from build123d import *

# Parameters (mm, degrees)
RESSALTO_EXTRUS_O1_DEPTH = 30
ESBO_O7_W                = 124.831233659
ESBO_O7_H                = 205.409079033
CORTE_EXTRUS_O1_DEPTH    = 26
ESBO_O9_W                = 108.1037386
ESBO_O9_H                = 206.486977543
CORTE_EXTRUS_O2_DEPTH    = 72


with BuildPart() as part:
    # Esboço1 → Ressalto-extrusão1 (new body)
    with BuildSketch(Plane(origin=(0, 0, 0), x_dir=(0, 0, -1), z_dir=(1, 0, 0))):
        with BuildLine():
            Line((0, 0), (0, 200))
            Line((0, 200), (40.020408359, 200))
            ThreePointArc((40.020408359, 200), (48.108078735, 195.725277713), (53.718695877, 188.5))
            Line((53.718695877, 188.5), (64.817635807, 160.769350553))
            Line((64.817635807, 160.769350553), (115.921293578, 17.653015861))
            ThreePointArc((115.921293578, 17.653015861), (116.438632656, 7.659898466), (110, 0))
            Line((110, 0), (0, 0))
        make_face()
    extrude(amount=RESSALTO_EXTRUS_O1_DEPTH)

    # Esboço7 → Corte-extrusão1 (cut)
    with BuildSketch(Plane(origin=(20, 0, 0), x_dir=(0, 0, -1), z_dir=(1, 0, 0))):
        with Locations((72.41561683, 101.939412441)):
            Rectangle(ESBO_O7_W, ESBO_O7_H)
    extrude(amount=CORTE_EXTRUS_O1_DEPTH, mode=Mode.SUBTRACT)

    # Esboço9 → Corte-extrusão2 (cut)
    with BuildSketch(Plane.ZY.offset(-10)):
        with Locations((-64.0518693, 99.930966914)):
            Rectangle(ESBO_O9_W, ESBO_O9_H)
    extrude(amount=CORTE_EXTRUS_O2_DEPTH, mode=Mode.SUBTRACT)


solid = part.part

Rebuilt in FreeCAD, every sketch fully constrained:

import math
import FreeCAD as App
import Part
import Sketcher
from FreeCAD import Vector
Q = App.Units.Quantity

doc = App.newDocument("Part")
body = doc.addObject("PartDesign::Body", "Body")

sketch1 = body.newObject("Sketcher::SketchObject", "Sketch")
sketch1.AttachmentSupport = (doc.getObject("YZ_Plane"), [""])
sketch1.MapMode = "FlatFace"
sketch1.addGeometry(Part.LineSegment(Vector(200, 0, 0), Vector(0, 0, 0)), False)
sketch1.addGeometry(Part.LineSegment(Vector(0, 0, 0), Vector(0, -110, 0)), False)
sketch1.addGeometry(Part.ArcOfCircle(Part.Circle(Vector(12, -103, 0), Vector(0, 0, 1), 14), math.radians(-152), math.radians(-66)), False)
sketch1.addGeometry(Part.LineSegment(Vector(18, -116, 0), Vector(161, -65, 0)), False)
sketch1.addGeometry(Part.LineSegment(Vector(161, -65, 0), Vector(188, -54, 0)), False)
sketch1.addGeometry(Part.ArcOfCircle(Part.Circle(Vector(179, -34, 0), Vector(0, 0, 1), 22), math.radians(-64), math.radians(-16)), False)
sketch1.addGeometry(Part.LineSegment(Vector(200, -40, 0), Vector(200, 0, 0)), False)
sketch1.addConstraint(Sketcher.Constraint("Coincident", 0, 2, 1, 1))
sketch1.addConstraint(Sketcher.Constraint("Coincident", 1, 2, 2, 1))
sketch1.addConstraint(Sketcher.Constraint("Coincident", 2, 2, 3, 1))
sketch1.addConstraint(Sketcher.Constraint("Coincident", 3, 2, 4, 1))
sketch1.addConstraint(Sketcher.Constraint("Coincident", 4, 2, 5, 1))
sketch1.addConstraint(Sketcher.Constraint("Coincident", 5, 2, 6, 1))
sketch1.addConstraint(Sketcher.Constraint("Coincident", 6, 2, 0, 1))
sketch1.addConstraint(Sketcher.Constraint("Horizontal", 0))
sketch1.addConstraint(Sketcher.Constraint("Vertical", 1))
sketch1.addConstraint(Sketcher.Constraint("Vertical", 6))
sketch1.addConstraint(Sketcher.Constraint("Coincident", 0, 2, -1, 1))
sketch1.addConstraint(Sketcher.Constraint("DistanceX", 0, 2, 0, 1, Q("200 mm")))
sketch1.addConstraint(Sketcher.Constraint("DistanceY", 1, 2, 1, 1, Q("110 mm")))
sketch1.addConstraint(Sketcher.Constraint("DistanceX", -1, 1, 2, 3, Q("12 mm")))
sketch1.addConstraint(Sketcher.Constraint("DistanceX", -1, 1, 4, 2, Q("188.5 mm")))
sketch1.addConstraint(Sketcher.Constraint("Radius", 2, Q("13.64754 mm")))
sketch1.addConstraint(Sketcher.Constraint("Radius", 5, Q("21.722047 mm")))
sketch1.addConstraint(Sketcher.Constraint("DistanceY", 6, 1, 6, 2, Q("40.020408 mm")))
sketch1.addConstraint(Sketcher.Constraint("Distance", 3, Q("151.966671 mm")))
sketch1.addConstraint(Sketcher.Constraint("DistanceX", -1, 1, 3, 2, Q("160.769351 mm")))
sketch1.addConstraint(Sketcher.Constraint("DistanceX", 2, 2, 5, 3, Q("161.43566 mm")))
sketch1.addConstraint(Sketcher.Constraint("DistanceY", 2, 2, 5, 3, Q("81.779991 mm")))
pad1 = body.newObject("PartDesign::Pad", "Pad")
pad1.Profile = sketch1
pad1.Length = 30

sketch2 = body.newObject("Sketcher::SketchObject", "Sketch001")
sketch2.AttachmentSupport = (doc.getObject("YZ_Plane"), [""])
sketch2.MapMode = "FlatFace"
sketch2.AttachmentOffset = App.Placement(Vector(0, 0, 20), App.Rotation())
sketch2.addGeometry(Part.LineSegment(Vector(205, -10, 0), Vector(-1, -10, 0)), False)
sketch2.addGeometry(Part.LineSegment(Vector(-1, -10, 0), Vector(-1, -135, 0)), False)
sketch2.addGeometry(Part.LineSegment(Vector(-1, -135, 0), Vector(205, -135, 0)), False)
sketch2.addGeometry(Part.LineSegment(Vector(205, -135, 0), Vector(205, -10, 0)), False)
sketch2.addConstraint(Sketcher.Constraint("Coincident", 0, 2, 1, 1))
sketch2.addConstraint(Sketcher.Constraint("Coincident", 1, 2, 2, 1))
sketch2.addConstraint(Sketcher.Constraint("Coincident", 2, 2, 3, 1))
sketch2.addConstraint(Sketcher.Constraint("Coincident", 3, 2, 0, 1))
sketch2.addConstraint(Sketcher.Constraint("Horizontal", 0))
sketch2.addConstraint(Sketcher.Constraint("Vertical", 1))
sketch2.addConstraint(Sketcher.Constraint("Horizontal", 2))
sketch2.addConstraint(Sketcher.Constraint("Vertical", 3))
sketch2.addConstraint(Sketcher.Constraint("DistanceY", 0, 2, -1, 1, Q("10 mm")))
sketch2.addConstraint(Sketcher.Constraint("DistanceX", 0, 2, 0, 1, Q("205.409079 mm")))
sketch2.addConstraint(Sketcher.Constraint("DistanceY", 1, 2, 1, 1, Q("124.831234 mm")))
sketch2.addConstraint(Sketcher.Constraint("DistanceX", -1, 1, 2, 2, Q("204.643952 mm")))
pocket1 = body.newObject("PartDesign::Pocket", "Pocket")
pocket1.Profile = sketch2
pocket1.Length = 26
pocket1.Reversed = True

sketch3 = body.newObject("Sketcher::SketchObject", "Sketch002")
sketch3.AttachmentSupport = (doc.getObject("YZ_Plane"), [""])
sketch3.MapMode = "FlatFace"
sketch3.AttachmentOffset = App.Placement(Vector(0, 0, 10), App.Rotation())
sketch3.addGeometry(Part.LineSegment(Vector(203, -118, 0), Vector(-3, -118, 0)), False)
sketch3.addGeometry(Part.LineSegment(Vector(-3, -118, 0), Vector(-3, -10, 0)), False)
sketch3.addGeometry(Part.LineSegment(Vector(-3, -10, 0), Vector(203, -10, 0)), False)
sketch3.addGeometry(Part.LineSegment(Vector(203, -10, 0), Vector(203, -118, 0)), False)
sketch3.addConstraint(Sketcher.Constraint("Coincident", 0, 2, 1, 1))
sketch3.addConstraint(Sketcher.Constraint("Coincident", 1, 2, 2, 1))
sketch3.addConstraint(Sketcher.Constraint("Coincident", 2, 2, 3, 1))
sketch3.addConstraint(Sketcher.Constraint("Coincident", 3, 2, 0, 1))
sketch3.addConstraint(Sketcher.Constraint("Horizontal", 0))
sketch3.addConstraint(Sketcher.Constraint("Vertical", 1))
sketch3.addConstraint(Sketcher.Constraint("Horizontal", 2))
sketch3.addConstraint(Sketcher.Constraint("Vertical", 3))
sketch3.addConstraint(Sketcher.Constraint("DistanceY", 1, 2, -1, 1, Q("10 mm")))
sketch3.addConstraint(Sketcher.Constraint("DistanceY", 1, 1, 1, 2, Q("108.103739 mm")))
sketch3.addConstraint(Sketcher.Constraint("DistanceX", 0, 2, 0, 1, Q("206.486978 mm")))
sketch3.addConstraint(Sketcher.Constraint("DistanceX", 0, 2, -1, 1, Q("3.312522 mm")))
pocket2 = body.newObject("PartDesign::Pocket", "Pocket001")
pocket2.Profile = sketch3
pocket2.Length = 72

doc.recompute()
